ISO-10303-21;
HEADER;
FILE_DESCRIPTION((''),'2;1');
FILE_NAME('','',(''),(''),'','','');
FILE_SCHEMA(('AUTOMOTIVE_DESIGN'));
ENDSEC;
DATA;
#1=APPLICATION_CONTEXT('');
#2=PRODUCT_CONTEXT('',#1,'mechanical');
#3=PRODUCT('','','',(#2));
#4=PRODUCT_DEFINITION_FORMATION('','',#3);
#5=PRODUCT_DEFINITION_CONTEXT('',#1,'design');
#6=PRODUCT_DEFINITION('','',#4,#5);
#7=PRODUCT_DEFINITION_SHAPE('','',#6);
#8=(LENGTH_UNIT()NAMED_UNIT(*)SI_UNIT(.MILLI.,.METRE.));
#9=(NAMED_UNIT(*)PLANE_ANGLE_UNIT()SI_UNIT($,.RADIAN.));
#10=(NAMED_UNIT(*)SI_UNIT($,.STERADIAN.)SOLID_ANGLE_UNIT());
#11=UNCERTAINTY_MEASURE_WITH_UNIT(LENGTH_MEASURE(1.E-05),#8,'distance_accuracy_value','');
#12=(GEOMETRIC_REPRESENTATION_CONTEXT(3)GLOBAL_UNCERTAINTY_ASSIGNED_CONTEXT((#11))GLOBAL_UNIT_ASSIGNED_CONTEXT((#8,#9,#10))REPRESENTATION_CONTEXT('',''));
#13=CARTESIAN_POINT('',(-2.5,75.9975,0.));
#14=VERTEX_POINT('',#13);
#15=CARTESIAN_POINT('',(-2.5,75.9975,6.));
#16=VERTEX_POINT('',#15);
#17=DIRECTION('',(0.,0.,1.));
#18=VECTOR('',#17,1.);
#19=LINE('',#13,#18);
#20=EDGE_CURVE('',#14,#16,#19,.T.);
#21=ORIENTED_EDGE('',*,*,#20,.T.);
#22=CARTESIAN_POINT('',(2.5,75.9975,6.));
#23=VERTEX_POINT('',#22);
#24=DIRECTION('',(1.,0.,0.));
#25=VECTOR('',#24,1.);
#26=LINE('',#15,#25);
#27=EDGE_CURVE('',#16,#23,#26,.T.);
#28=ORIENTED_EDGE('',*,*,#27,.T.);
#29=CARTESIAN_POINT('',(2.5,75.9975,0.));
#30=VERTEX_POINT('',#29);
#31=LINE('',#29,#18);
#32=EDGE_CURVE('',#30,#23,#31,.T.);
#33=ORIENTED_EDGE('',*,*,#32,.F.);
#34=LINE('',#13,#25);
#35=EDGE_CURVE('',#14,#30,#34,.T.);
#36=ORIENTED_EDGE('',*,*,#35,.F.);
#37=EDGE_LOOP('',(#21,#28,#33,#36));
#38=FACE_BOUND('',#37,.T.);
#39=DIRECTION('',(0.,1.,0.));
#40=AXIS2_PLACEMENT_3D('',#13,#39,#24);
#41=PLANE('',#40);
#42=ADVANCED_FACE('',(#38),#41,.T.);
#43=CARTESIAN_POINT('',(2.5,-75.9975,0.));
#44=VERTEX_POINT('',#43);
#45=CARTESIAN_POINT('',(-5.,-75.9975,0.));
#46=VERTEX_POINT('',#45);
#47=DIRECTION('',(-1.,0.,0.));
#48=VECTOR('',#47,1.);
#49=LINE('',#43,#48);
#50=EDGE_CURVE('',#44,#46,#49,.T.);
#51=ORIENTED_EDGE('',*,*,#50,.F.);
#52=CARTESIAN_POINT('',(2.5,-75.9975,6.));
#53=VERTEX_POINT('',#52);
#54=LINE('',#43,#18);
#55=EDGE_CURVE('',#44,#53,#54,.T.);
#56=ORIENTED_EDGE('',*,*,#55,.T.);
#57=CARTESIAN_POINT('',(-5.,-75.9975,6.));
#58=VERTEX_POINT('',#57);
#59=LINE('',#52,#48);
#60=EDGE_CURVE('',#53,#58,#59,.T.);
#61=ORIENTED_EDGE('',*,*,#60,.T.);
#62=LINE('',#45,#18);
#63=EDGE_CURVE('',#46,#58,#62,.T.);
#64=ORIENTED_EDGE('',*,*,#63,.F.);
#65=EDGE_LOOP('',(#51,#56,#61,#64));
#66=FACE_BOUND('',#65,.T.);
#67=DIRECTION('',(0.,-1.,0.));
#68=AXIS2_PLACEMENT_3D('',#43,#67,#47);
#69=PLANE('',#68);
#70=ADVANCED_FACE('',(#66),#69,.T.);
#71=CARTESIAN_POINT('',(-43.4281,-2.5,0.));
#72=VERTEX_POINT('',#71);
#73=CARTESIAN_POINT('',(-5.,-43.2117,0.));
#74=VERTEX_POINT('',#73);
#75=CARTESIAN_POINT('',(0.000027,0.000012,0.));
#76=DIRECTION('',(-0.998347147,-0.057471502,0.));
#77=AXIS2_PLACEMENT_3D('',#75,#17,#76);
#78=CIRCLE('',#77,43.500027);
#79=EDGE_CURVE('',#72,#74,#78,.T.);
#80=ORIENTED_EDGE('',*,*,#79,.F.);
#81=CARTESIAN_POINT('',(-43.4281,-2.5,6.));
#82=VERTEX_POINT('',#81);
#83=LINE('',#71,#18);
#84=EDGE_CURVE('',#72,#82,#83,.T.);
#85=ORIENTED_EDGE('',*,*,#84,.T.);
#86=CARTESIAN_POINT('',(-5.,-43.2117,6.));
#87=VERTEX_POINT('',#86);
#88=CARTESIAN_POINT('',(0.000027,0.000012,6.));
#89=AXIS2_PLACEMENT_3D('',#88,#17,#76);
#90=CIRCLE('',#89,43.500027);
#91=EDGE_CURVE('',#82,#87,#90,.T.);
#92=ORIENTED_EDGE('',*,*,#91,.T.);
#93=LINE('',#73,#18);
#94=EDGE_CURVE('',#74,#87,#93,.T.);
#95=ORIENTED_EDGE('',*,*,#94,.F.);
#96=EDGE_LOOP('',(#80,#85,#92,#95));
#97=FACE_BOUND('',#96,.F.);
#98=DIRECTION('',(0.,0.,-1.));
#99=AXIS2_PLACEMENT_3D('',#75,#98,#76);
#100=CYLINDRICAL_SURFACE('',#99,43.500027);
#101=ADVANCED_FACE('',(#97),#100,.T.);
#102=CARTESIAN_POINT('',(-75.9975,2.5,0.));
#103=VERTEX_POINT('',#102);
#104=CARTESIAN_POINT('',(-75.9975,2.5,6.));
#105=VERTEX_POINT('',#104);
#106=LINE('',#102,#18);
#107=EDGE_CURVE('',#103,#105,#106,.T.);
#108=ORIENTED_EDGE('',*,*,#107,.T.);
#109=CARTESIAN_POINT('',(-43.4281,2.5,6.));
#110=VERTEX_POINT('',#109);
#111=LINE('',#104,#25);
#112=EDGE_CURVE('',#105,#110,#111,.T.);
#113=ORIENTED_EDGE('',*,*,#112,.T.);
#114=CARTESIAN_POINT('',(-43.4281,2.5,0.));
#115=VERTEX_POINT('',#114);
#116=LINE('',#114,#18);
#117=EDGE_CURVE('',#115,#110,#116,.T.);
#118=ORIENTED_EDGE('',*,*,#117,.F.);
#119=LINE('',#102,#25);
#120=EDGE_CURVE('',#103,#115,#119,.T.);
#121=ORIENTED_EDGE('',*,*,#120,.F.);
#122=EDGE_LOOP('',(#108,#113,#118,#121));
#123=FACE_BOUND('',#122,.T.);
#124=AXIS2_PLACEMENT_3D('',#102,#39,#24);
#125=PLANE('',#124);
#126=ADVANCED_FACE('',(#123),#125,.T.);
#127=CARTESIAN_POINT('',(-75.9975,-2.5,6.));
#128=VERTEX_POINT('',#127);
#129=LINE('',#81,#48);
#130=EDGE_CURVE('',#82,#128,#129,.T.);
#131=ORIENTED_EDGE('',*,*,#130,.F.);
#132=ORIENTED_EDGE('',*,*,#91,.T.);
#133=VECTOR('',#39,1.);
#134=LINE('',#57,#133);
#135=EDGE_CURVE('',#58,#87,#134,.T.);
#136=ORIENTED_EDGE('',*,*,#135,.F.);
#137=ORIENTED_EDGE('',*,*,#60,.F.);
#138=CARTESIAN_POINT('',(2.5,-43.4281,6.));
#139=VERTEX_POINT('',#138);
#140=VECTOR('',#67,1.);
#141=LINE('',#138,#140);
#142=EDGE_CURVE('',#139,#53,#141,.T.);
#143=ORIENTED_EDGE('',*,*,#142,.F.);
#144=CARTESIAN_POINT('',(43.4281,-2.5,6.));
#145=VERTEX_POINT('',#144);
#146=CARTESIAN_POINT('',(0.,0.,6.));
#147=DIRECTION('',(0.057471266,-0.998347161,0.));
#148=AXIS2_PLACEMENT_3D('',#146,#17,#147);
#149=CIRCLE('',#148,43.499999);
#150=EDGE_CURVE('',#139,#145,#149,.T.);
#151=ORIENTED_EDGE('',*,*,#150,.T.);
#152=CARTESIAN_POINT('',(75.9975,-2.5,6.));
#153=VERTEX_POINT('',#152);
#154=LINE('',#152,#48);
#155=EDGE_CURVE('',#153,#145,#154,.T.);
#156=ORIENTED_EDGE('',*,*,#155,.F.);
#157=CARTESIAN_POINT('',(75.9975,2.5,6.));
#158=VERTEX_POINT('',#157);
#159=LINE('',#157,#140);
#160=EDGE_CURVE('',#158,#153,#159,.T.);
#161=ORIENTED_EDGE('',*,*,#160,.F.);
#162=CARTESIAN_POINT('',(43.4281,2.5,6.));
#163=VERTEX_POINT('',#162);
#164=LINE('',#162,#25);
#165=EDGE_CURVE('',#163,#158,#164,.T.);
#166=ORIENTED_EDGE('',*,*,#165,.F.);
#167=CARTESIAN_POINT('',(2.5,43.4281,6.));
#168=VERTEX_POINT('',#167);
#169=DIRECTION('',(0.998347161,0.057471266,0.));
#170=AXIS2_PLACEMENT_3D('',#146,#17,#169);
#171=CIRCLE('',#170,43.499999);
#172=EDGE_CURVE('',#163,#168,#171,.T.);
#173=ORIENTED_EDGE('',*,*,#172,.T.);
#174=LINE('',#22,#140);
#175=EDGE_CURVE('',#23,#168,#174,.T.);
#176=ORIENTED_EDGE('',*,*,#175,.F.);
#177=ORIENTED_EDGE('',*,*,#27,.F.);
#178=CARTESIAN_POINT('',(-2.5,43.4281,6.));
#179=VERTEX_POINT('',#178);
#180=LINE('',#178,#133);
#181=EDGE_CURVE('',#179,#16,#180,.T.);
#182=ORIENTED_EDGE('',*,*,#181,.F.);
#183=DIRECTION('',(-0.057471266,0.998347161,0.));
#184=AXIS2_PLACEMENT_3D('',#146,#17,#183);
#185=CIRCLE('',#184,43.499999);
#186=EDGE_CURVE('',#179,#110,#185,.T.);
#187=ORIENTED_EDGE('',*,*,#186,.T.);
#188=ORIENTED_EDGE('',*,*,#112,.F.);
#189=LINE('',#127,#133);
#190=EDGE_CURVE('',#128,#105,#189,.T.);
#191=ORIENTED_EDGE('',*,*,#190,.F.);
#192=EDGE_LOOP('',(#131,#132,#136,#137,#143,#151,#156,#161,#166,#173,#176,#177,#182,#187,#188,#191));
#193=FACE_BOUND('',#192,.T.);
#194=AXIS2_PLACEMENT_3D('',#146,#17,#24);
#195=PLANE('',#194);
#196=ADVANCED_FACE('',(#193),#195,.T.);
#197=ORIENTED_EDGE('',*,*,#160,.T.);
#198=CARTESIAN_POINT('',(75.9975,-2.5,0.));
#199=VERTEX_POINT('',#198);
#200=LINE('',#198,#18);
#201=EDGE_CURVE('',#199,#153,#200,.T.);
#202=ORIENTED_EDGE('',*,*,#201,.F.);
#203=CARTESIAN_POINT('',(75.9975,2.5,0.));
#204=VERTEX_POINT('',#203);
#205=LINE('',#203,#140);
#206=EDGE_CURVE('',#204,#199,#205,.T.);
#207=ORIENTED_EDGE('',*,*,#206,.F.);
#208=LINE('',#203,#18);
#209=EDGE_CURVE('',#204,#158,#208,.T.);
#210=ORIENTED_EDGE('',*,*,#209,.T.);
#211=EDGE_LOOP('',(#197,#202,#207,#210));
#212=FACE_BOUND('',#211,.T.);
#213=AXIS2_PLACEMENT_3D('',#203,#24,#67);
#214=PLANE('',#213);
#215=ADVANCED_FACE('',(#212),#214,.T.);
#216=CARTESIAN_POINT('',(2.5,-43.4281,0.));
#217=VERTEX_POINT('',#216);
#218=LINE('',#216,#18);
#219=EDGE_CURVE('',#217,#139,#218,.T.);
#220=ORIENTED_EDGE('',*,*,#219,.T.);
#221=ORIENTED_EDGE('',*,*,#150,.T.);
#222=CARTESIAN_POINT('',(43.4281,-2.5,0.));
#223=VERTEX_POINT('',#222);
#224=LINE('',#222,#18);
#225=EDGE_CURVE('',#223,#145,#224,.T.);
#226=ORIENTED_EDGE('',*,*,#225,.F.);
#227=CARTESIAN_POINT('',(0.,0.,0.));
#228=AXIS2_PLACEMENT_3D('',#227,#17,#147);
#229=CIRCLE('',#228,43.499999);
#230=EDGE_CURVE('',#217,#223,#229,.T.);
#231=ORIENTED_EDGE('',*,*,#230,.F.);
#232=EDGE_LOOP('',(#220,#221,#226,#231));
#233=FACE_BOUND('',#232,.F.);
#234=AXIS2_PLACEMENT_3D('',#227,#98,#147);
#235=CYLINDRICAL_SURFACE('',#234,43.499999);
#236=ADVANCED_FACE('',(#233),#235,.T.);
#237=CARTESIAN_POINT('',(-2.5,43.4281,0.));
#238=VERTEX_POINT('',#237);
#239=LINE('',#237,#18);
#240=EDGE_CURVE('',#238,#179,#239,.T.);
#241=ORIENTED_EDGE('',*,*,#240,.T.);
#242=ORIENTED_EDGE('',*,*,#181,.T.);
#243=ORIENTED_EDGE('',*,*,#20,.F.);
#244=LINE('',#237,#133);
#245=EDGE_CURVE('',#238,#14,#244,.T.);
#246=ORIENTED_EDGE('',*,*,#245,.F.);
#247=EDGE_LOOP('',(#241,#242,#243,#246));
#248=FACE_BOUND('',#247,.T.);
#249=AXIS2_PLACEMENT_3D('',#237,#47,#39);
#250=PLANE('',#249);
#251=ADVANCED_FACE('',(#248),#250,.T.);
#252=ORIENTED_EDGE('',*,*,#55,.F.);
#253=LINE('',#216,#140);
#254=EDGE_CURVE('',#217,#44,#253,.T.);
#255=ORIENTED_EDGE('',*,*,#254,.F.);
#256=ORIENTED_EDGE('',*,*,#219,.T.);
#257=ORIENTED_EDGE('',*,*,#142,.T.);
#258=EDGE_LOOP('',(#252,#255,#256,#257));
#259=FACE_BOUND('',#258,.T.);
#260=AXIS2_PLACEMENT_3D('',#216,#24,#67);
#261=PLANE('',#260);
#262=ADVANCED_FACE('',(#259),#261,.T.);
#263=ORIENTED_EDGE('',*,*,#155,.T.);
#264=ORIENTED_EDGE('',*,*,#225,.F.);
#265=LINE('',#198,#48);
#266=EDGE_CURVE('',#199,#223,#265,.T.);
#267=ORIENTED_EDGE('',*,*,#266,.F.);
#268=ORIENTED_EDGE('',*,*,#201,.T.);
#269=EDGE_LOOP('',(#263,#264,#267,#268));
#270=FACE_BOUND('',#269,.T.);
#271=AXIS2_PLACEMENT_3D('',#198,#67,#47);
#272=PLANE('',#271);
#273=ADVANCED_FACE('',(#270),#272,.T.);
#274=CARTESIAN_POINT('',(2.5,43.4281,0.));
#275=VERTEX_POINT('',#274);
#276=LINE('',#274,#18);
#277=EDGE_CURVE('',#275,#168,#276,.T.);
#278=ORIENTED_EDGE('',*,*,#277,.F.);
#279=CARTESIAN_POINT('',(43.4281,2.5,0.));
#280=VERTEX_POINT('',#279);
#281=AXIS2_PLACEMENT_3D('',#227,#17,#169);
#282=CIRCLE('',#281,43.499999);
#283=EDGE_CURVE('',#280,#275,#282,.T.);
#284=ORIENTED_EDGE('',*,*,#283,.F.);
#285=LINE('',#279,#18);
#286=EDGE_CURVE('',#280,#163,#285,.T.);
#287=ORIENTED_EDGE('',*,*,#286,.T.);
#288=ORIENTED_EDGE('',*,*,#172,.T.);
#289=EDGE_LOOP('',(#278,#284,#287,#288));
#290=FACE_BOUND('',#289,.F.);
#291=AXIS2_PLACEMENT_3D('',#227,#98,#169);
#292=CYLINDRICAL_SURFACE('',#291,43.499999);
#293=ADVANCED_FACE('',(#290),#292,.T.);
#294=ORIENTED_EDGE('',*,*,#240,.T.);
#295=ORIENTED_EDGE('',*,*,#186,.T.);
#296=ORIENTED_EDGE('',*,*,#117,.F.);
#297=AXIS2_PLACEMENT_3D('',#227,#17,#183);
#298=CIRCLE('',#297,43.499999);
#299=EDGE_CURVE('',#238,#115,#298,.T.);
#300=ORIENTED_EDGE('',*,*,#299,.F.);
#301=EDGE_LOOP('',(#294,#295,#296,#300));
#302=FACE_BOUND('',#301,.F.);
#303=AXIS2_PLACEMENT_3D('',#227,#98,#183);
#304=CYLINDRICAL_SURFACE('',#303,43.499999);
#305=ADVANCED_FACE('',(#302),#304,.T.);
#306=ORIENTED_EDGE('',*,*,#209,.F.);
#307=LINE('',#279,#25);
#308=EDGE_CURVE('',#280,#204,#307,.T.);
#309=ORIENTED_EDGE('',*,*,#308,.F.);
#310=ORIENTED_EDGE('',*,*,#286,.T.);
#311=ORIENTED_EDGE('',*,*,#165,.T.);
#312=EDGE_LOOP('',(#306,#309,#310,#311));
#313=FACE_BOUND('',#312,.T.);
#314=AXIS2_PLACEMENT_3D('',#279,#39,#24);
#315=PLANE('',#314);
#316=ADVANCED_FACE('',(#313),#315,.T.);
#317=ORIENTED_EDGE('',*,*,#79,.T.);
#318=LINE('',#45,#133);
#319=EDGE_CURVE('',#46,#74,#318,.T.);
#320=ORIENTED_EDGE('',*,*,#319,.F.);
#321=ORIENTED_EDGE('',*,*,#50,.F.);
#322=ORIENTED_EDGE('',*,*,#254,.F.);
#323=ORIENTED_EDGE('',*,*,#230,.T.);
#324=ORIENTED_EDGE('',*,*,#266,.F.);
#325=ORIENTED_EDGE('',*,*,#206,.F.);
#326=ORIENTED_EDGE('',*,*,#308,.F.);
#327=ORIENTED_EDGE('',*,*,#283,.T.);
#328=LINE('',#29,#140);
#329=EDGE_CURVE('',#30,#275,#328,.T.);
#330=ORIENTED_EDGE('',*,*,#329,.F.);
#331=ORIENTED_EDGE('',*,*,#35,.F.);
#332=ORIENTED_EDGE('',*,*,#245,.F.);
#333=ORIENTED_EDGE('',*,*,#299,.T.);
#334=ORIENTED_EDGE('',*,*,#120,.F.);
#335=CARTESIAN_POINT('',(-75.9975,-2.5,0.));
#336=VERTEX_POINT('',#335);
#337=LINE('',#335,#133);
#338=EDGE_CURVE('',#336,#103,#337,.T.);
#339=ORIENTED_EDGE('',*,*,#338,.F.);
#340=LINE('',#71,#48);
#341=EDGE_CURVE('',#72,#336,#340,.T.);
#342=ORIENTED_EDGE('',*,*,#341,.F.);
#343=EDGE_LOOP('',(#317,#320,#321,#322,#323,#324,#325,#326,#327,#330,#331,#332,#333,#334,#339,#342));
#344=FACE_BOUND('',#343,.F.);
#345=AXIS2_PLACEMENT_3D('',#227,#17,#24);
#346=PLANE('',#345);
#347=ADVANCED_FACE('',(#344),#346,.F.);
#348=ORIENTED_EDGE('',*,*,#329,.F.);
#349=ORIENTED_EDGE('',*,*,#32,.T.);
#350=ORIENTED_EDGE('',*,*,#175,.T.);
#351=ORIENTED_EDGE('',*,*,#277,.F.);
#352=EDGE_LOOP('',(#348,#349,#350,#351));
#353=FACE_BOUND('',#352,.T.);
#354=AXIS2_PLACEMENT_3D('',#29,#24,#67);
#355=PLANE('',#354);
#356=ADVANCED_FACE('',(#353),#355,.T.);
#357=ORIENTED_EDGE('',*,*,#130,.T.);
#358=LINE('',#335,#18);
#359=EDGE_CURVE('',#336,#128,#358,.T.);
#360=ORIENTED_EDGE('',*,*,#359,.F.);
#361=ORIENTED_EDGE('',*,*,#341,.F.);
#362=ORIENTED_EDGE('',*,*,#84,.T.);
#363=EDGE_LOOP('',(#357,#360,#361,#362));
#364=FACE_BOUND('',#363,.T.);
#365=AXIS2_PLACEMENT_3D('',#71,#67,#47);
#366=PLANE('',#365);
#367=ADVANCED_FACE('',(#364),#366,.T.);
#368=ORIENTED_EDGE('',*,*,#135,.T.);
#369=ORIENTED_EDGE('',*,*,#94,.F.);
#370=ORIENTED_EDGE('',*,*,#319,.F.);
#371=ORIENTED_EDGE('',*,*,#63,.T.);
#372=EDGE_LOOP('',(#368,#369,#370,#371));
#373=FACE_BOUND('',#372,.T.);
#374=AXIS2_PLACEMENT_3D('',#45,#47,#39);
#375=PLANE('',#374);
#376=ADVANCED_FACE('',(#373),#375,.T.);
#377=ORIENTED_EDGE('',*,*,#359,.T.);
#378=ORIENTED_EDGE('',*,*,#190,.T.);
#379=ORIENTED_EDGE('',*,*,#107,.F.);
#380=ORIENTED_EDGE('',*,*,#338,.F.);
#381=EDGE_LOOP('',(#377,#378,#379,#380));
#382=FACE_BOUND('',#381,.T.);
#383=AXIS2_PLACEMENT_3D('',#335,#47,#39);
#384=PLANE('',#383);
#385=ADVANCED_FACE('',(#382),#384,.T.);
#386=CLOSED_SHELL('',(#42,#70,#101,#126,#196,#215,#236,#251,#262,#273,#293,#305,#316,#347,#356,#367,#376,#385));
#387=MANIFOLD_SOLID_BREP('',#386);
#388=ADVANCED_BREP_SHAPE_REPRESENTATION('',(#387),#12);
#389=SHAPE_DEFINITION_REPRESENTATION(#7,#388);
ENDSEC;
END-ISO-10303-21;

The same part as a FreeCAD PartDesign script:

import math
import FreeCAD as App
import Part
import Sketcher

V = App.Vector

doc = App.newDocument("Part")
params = doc.addObject("Spreadsheet::Sheet", "Params")
for row, (alias, value) in enumerate([
    ("sketch1_radius", "43.5 mm"),
    ("sketch1_width", "7.5 mm"),
    ("pad1_length", "6 mm"),
], start=1):
    params.set(f"A{row}", alias)
    params.set(f"B{row}", "=" + value)
    params.setAlias(f"B{row}", alias)

body = doc.addObject("PartDesign::Body", "Body")

# Sketch on XY plane
sketch1 = body.newObject("Sketcher::SketchObject", "Sketch")
sketch1.AttachmentSupport = (doc.getObject("XY_Plane"), [""])
sketch1.MapMode = "FlatFace"
sketch1.addGeometry([
    Part.LineSegment(V(2.5, -75.9975, 0), V(2.5, -43.4281, 0)),  # 0
    Part.ArcOfCircle(Part.Circle(V(0, 0, 0), V(0, 0, 1), 43.499999), math.radians(-86.705324), math.radians(-3.294676)),  # 1
    Part.LineSegment(V(43.4281, -2.5, 0), V(75.9975, -2.5, 0)),  # 2
    Part.LineSegment(V(75.9975, -2.5, 0), V(75.9975, 2.5, 0)),  # 3
    Part.LineSegment(V(75.9975, 2.5, 0), V(43.4281, 2.5, 0)),  # 4
    Part.ArcOfCircle(Part.Circle(V(0, 0, 0), V(0, 0, 1), 43.499999), math.radians(3.294676), math.radians(86.705324)),  # 5
    Part.LineSegment(V(2.5, 43.4281, 0), V(2.5, 75.9975, 0)),  # 6
    Part.LineSegment(V(2.5, 75.9975, 0), V(-2.5, 75.9975, 0)),  # 7
    Part.LineSegment(V(-2.5, 75.9975, 0), V(-2.5, 43.4281, 0)),  # 8
    Part.ArcOfCircle(Part.Circle(V(0, 0, 0), V(0, 0, 1), 43.499999), math.radians(93.294676), math.radians(176.705324)),  # 9
    Part.LineSegment(V(-43.4281, 2.5, 0), V(-75.9975, 2.5, 0)),  # 10
    Part.LineSegment(V(-75.9975, 2.5, 0), V(-75.9975, -2.5, 0)),  # 11
    Part.LineSegment(V(-75.9975, -2.5, 0), V(-43.4281, -2.5, 0)),  # 12
    Part.ArcOfCircle(Part.Circle(V(0, 0, 0), V(0, 0, 1), 43.5), math.radians(-176.705324), math.radians(-96.600308)),  # 13
    Part.LineSegment(V(-5, -43.2117, 0), V(-5, -75.9975, 0)),  # 14
    Part.LineSegment(V(-5, -75.9975, 0), V(2.5, -75.9975, 0)),  # 15
], False)
sketch1.addConstraint([
    Sketcher.Constraint("Coincident", 0, 2, 1, 1),
    Sketcher.Constraint("Coincident", 1, 2, 2, 1),
    Sketcher.Constraint("Coincident", 2, 2, 3, 1),
    Sketcher.Constraint("Coincident", 3, 2, 4, 1),
    Sketcher.Constraint("Coincident", 4, 2, 5, 1),
    Sketcher.Constraint("Coincident", 5, 2, 6, 1),
    Sketcher.Constraint("Coincident", 6, 2, 7, 1),
    Sketcher.Constraint("Coincident", 7, 2, 8, 1),
    Sketcher.Constraint("Coincident", 8, 2, 9, 1),
    Sketcher.Constraint("Coincident", 9, 2, 10, 1),
    Sketcher.Constraint("Coincident", 10, 2, 11, 1),
    Sketcher.Constraint("Coincident", 11, 2, 12, 1),
    Sketcher.Constraint("Coincident", 12, 2, 13, 1),
    Sketcher.Constraint("Coincident", 13, 2, 14, 1),
    Sketcher.Constraint("Coincident", 14, 2, 15, 1),
    Sketcher.Constraint("Coincident", 15, 2, 0, 1),
    Sketcher.Constraint("Vertical", 0),
    Sketcher.Constraint("Horizontal", 2),
    Sketcher.Constraint("Vertical", 3),
    Sketcher.Constraint("Horizontal", 4),
    Sketcher.Constraint("Vertical", 6),
    Sketcher.Constraint("Horizontal", 7),
    Sketcher.Constraint("Vertical", 8),
    Sketcher.Constraint("Horizontal", 10),
    Sketcher.Constraint("Vertical", 11),
    Sketcher.Constraint("Horizontal", 12),
    Sketcher.Constraint("Vertical", 14),
    Sketcher.Constraint("Horizontal", 15),
    Sketcher.Constraint("Coincident", 1, 3, -1, 1),
    Sketcher.Constraint("Coincident", 5, 3, -1, 1),
    Sketcher.Constraint("Coincident", 9, 3, -1, 1),
    Sketcher.Constraint("Coincident", 13, 3, -1, 1),
    Sketcher.Constraint("Equal", 1, 5),
    Sketcher.Constraint("Equal", 5, 9),
    Sketcher.Constraint("Equal", 9, 13),
    Sketcher.Constraint("Symmetric", 2, 2, 10, 2, -1, 1),
    Sketcher.Constraint("Symmetric", 7, 2, 15, 2, -1, 1),
    Sketcher.Constraint("Horizontal", 5, 2, 8, 2),
    Sketcher.Constraint("Horizontal", 4, 2, 9, 2),
    Sketcher.Constraint("Horizontal", 2, 2, 11, 2),
    Sketcher.Constraint("Equal", 12, 0),
    Sketcher.Constraint("Equal", 7, 3),
    Sketcher.Constraint("Radius", 1, 43.5),
    Sketcher.Constraint("DistanceX", -1, 1, 0, 2, 2.5),
    Sketcher.Constraint("DistanceX", 15, 1, 15, 2, 7.5),
    Sketcher.Constraint("DistanceX", -1, 1, 2, 2, 75.9975),
])
sketch1.setExpression("Constraints[42]", "Params.sketch1_radius")
sketch1.setExpression("Constraints[44]", "Params.sketch1_width")
pad1 = body.newObject("PartDesign::Pad", "Pad")
pad1.Profile = sketch1
pad1.setExpression("Length", "Params.pad1_length")

doc.recompute()
